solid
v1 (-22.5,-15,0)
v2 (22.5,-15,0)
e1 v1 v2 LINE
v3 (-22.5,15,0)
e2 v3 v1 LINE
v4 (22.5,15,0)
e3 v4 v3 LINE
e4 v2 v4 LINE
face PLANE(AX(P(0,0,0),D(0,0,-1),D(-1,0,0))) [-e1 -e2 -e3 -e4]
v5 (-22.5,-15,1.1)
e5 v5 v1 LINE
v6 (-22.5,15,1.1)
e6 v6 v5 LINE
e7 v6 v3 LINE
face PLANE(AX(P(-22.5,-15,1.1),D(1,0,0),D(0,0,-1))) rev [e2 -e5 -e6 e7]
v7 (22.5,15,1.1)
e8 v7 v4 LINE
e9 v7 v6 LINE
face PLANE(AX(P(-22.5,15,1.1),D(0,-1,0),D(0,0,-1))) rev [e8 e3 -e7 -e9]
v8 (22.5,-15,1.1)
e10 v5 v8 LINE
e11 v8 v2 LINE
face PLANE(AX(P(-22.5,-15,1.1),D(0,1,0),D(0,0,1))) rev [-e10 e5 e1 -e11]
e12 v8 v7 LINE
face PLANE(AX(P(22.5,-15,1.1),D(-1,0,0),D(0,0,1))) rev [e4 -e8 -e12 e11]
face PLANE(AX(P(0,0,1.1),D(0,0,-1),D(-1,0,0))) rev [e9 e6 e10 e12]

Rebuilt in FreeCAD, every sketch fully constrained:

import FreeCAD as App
import Part
import Sketcher
from FreeCAD import Vector


def add_polygon(sketch, points):
    """Adds a closed chain of lines whose ends are joined by coincident constraints."""
    first, n = sketch.GeometryCount, len(points)
    for a, b in zip(points, points[1:] + points[:1]):
        sketch.addGeometry(Part.LineSegment(App.Vector(*a, 0), App.Vector(*b, 0)), False)
    for i in range(n):
        sketch.addConstraint(Sketcher.Constraint("Coincident", first + i, 2, first + (i + 1) % n, 1))

doc = App.newDocument("Part")
body = doc.addObject("PartDesign::Body", "Body")

sketch1 = body.newObject("Sketcher::SketchObject", "Sketch")
sketch1.AttachmentSupport = (doc.getObject("XY_Plane"), [""])
sketch1.MapMode = "FlatFace"
add_polygon(sketch1, [(-22, 15), (-22, -15), (22, -15), (22, 15)])
sketch1.addConstraint(Sketcher.Constraint("Vertical", 0))
sketch1.addConstraint(Sketcher.Constraint("Horizontal", 1))
sketch1.addConstraint(Sketcher.Constraint("Vertical", 2))
sketch1.addConstraint(Sketcher.Constraint("Horizontal", 3))
sketch1.addConstraint(Sketcher.Constraint("Symmetric", 0, 2, 2, 2, -1, 1))
sketch1.addConstraint(Sketcher.Constraint("DistanceX", 1, 1, 1, 2, 45.0))
sketch1.addConstraint(Sketcher.Constraint("DistanceY", 0, 2, 0, 1, 30.0))
pad1 = body.newObject("PartDesign::Pad", "Pad")
pad1.Profile = sketch1
pad1.Length = 1.1

doc.recompute()
